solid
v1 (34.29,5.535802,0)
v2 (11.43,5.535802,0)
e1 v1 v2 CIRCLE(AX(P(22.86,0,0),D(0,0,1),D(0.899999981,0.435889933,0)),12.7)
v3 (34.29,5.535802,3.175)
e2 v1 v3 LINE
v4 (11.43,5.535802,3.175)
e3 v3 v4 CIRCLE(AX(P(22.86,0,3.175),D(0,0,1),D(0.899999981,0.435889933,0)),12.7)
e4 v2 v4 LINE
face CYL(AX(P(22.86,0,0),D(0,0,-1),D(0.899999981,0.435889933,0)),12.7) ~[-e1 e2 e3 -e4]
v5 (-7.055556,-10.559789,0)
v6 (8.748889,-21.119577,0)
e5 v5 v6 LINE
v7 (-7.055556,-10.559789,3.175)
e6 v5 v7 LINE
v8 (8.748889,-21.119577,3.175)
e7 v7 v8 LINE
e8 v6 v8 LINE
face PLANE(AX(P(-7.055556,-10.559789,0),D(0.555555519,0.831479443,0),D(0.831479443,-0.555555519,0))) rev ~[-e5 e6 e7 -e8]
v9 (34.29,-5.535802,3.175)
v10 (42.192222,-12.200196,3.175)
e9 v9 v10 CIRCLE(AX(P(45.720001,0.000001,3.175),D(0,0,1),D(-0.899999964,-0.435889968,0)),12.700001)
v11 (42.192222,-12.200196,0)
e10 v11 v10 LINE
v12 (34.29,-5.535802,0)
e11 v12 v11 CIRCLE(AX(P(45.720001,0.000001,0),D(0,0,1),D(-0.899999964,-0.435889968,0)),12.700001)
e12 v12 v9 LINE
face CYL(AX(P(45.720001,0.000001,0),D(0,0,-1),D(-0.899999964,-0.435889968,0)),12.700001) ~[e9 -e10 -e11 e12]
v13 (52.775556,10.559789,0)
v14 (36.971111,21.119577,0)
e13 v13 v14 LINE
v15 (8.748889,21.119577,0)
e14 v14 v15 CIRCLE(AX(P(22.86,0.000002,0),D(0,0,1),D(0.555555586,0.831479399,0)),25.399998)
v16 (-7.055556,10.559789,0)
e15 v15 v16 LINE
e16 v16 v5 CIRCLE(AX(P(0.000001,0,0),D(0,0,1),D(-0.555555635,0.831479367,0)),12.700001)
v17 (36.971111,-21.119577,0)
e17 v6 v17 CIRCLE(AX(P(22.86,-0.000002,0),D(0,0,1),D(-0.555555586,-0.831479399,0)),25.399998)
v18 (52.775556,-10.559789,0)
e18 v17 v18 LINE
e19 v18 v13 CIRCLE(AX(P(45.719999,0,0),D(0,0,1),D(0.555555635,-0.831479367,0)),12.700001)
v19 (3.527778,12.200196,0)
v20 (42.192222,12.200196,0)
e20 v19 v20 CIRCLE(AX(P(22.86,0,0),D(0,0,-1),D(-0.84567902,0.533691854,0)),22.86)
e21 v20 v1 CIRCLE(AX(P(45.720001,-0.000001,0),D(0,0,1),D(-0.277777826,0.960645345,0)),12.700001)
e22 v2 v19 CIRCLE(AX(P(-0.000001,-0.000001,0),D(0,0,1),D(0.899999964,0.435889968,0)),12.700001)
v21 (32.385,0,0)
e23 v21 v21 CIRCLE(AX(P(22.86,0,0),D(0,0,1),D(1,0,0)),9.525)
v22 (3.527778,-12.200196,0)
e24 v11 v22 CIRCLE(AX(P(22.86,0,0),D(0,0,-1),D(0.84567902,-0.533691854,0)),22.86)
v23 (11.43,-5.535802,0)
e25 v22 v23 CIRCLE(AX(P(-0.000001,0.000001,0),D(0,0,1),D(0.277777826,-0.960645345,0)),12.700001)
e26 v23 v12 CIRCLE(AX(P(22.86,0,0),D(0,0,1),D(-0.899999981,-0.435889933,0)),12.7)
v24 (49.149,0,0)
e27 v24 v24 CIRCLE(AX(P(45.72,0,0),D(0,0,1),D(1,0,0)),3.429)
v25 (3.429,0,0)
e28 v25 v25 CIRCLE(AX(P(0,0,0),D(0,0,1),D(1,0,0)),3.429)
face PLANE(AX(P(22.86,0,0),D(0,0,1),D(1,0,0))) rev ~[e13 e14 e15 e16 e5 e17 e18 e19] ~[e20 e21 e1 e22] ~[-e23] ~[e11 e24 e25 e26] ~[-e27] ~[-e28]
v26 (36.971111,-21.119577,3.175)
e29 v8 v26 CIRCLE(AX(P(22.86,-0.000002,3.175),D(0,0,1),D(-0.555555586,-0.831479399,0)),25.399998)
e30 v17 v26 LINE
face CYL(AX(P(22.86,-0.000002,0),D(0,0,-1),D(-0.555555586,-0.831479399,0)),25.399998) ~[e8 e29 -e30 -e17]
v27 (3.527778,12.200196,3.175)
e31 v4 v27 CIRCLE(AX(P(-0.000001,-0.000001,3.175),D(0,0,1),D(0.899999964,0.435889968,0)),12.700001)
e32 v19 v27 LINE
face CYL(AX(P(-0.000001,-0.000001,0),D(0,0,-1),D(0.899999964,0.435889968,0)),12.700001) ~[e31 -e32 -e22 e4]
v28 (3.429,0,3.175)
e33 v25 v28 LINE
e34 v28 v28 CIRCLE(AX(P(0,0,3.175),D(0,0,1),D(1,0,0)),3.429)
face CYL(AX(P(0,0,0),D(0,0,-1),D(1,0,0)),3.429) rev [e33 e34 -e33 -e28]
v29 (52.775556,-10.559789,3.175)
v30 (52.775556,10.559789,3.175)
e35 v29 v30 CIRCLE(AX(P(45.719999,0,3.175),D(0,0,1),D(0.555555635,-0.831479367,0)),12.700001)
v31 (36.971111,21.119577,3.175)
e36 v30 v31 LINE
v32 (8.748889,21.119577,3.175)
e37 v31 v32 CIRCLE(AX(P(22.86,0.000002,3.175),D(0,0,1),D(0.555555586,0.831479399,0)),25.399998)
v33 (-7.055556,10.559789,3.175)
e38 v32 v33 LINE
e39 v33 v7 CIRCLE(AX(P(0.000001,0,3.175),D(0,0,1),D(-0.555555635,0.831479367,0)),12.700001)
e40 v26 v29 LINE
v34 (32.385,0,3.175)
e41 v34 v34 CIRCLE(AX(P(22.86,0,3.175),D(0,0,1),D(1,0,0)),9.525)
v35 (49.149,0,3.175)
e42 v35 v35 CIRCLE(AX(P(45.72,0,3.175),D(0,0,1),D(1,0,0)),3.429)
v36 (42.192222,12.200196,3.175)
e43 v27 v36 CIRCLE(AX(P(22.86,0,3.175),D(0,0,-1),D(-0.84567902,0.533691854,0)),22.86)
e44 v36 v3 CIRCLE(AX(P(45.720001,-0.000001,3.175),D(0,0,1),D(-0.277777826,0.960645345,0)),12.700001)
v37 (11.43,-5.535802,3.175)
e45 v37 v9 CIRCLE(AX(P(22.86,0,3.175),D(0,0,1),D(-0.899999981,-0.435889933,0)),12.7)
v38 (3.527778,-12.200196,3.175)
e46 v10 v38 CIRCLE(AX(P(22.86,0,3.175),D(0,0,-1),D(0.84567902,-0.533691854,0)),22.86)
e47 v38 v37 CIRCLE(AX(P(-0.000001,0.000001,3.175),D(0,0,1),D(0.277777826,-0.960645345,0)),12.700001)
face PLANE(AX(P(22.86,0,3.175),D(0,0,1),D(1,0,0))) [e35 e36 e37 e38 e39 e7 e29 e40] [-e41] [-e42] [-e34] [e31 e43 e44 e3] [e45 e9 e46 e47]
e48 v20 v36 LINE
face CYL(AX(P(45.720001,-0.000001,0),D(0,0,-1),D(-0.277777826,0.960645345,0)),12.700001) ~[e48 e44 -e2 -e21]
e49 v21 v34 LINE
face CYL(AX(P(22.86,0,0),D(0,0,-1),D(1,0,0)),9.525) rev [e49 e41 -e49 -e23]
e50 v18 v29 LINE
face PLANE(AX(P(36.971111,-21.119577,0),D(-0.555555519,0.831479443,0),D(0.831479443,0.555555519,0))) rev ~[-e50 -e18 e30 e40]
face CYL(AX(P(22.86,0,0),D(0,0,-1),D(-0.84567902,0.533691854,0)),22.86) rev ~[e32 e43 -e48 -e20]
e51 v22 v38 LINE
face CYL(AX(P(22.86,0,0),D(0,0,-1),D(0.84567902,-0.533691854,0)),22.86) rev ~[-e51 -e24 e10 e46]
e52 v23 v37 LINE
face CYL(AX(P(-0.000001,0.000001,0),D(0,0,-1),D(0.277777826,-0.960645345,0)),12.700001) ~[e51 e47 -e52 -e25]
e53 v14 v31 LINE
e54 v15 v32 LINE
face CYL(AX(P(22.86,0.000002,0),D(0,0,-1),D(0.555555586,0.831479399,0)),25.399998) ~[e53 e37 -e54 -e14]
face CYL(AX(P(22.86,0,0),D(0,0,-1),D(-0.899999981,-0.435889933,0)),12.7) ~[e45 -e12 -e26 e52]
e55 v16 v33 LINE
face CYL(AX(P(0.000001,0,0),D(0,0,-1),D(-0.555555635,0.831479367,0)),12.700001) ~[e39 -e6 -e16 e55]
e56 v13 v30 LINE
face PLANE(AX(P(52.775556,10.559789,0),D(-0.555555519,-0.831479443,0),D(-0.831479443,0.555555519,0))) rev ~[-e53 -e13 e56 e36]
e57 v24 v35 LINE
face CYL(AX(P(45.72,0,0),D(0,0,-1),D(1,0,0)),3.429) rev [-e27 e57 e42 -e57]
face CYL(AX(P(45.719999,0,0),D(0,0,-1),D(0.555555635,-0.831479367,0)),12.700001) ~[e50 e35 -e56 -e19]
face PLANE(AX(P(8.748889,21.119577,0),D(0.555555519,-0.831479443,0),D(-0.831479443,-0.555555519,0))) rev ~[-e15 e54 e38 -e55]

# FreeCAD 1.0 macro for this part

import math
import FreeCAD as App
import Part
import Sketcher

V = App.Vector
Q = App.Units.Quantity

doc = App.newDocument("Part")
body = doc.addObject("PartDesign::Body", "Body")

sketch1 = body.newObject("Sketcher::SketchObject", "Sketch")
sketch1.AttachmentSupport = (doc.getObject("XY_Plane"), [""])
sketch1.MapMode = "FlatFace"
sketch1.addGeometry([
    Part.LineSegment(V(8.7, 21.1, 0), V(-7.1, 10.6, 0)),
    Part.ArcOfCircle(Part.Circle(V(0, 0, 0), V(0, 0, 1), 12.7), math.radians(124), math.radians(236)),
    Part.LineSegment(V(-7.1, -10.6, 0), V(8.7, -21.1, 0)),
    Part.ArcOfCircle(Part.Circle(V(22.9, 0, 0), V(0, 0, 1), 25.4), math.radians(-124), math.radians(-56)),
    Part.LineSegment(V(37, -21.1, 0), V(52.8, -10.6, 0)),
    Part.ArcOfCircle(Part.Circle(V(45.7, 0, 0), V(0, 0, 1), 12.7), math.radians(-56), math.radians(56)),
    Part.LineSegment(V(52.8, 10.6, 0), V(37, 21.1, 0)),
    Part.ArcOfCircle(Part.Circle(V(22.9, 0, 0), V(0, 0, 1), 25.4), math.radians(56), math.radians(124)),
    Part.Circle(V(0, 0, 0), V(0, 0, 1), 3.4),
    Part.ArcOfCircle(Part.Circle(V(45.7, 0, 0), V(0, 0, 1), 12.7), math.radians(-154), math.radians(-106)),
    Part.ArcOfCircle(Part.Circle(V(22.9, 0, 0), V(0, 0, 1), 22.9), math.radians(-148), math.radians(-32)),
    Part.ArcOfCircle(Part.Circle(V(0, 0, 0), V(0, 0, 1), 12.7), math.radians(-74), math.radians(-26)),
    Part.ArcOfCircle(Part.Circle(V(22.9, 0, 0), V(0, 0, 1), 12.7), math.radians(-154), math.radians(-26)),
    Part.Circle(V(22.9, 0, 0), V(0, 0, 1), 9.5),
    Part.Circle(V(45.7, 0, 0), V(0, 0, 1), 3.4),
    Part.ArcOfCircle(Part.Circle(V(22.9, 0, 0), V(0, 0, 1), 22.9), math.radians(32), math.radians(148)),
    Part.ArcOfCircle(Part.Circle(V(45.7, 0, 0), V(0, 0, 1), 12.7), math.radians(106), math.radians(154)),
    Part.ArcOfCircle(Part.Circle(V(22.9, 0, 0), V(0, 0, 1), 12.7), math.radians(26), math.radians(154)),
    Part.ArcOfCircle(Part.Circle(V(0, 0, 0), V(0, 0, 1), 12.7), math.radians(26), math.radians(74)),
], False)
sketch1.addConstraint([
    Sketcher.Constraint("Tangent", 0, 2, 1, 1),
    Sketcher.Constraint("Tangent", 1, 2, 2, 1),
    Sketcher.Constraint("Tangent", 2, 2, 3, 1),
    Sketcher.Constraint("Tangent", 3, 2, 4, 1),
    Sketcher.Constraint("Tangent", 4, 2, 5, 1),
    Sketcher.Constraint("Tangent", 5, 2, 6, 1),
    Sketcher.Constraint("Tangent", 6, 2, 7, 1),
    Sketcher.Constraint("Tangent", 7, 2, 0, 1),
    Sketcher.Constraint("Coincident", 9, 2, 10, 2),
    Sketcher.Constraint("Coincident", 10, 1, 11, 1),
    Sketcher.Constraint("Coincident", 11, 2, 12, 1),
    Sketcher.Constraint("Coincident", 12, 2, 9, 1),
    Sketcher.Constraint("Coincident", 15, 1, 16, 1),
    Sketcher.Constraint("Coincident", 16, 2, 17, 1),
    Sketcher.Constraint("Coincident", 17, 2, 18, 1),
    Sketcher.Constraint("Coincident", 18, 2, 15, 2),
    Sketcher.Constraint("Coincident", 1, 3, -1, 1),
    Sketcher.Constraint("Coincident", 8, 3, -1, 1),
    Sketcher.Constraint("Coincident", 11, 3, -1, 1),
    Sketcher.Constraint("Coincident", 18, 3, -1, 1),
    Sketcher.Constraint("Coincident", 7, 3, 3, 3),
    Sketcher.Constraint("Coincident", 9, 3, 5, 3),
    Sketcher.Constraint("Coincident", 10, 3, 3, 3),
    Sketcher.Constraint("Coincident", 12, 3, 3, 3),
    Sketcher.Constraint("Coincident", 13, 3, 3, 3),
    Sketcher.Constraint("Coincident", 14, 3, 5, 3),
    Sketcher.Constraint("Coincident", 15, 3, 3, 3),
    Sketcher.Constraint("Coincident", 16, 3, 5, 3),
    Sketcher.Constraint("Coincident", 17, 3, 3, 3),
    Sketcher.Constraint("Equal", 1, 5),
    Sketcher.Constraint("Equal", 3, 7),
    Sketcher.Constraint("Equal", 5, 9),
    Sketcher.Constraint("Equal", 9, 11),
    Sketcher.Constraint("Equal", 11, 12),
    Sketcher.Constraint("Equal", 8, 14),
    Sketcher.Constraint("Equal", 10, 15),
    Sketcher.Constraint("Equal", 12, 16),
    Sketcher.Constraint("Equal", 16, 17),
    Sketcher.Constraint("Equal", 17, 18),
    Sketcher.Constraint("Symmetric", 4, 2, 5, 2, -1),
    Sketcher.Constraint("Parallel", 0, 4),
    Sketcher.Constraint("Radius", 3, Q("0.9999999 in")),
    Sketcher.Constraint("Radius", 1, Q("0.5 in")),
    Sketcher.Constraint("Radius", 10, Q("0.9 in")),
    Sketcher.Constraint("Diameter", 8, Q("0.27 in")),
    Sketcher.Constraint("Diameter", 13, Q("0.75 in")),
    Sketcher.Constraint("DistanceX", -1, 1, 3, 3, Q("0.9 in")),
])
pad1 = body.newObject("PartDesign::Pad", "Pad")
pad1.Profile = sketch1
pad1.Length = Q("0.125 in")

doc.recompute()
